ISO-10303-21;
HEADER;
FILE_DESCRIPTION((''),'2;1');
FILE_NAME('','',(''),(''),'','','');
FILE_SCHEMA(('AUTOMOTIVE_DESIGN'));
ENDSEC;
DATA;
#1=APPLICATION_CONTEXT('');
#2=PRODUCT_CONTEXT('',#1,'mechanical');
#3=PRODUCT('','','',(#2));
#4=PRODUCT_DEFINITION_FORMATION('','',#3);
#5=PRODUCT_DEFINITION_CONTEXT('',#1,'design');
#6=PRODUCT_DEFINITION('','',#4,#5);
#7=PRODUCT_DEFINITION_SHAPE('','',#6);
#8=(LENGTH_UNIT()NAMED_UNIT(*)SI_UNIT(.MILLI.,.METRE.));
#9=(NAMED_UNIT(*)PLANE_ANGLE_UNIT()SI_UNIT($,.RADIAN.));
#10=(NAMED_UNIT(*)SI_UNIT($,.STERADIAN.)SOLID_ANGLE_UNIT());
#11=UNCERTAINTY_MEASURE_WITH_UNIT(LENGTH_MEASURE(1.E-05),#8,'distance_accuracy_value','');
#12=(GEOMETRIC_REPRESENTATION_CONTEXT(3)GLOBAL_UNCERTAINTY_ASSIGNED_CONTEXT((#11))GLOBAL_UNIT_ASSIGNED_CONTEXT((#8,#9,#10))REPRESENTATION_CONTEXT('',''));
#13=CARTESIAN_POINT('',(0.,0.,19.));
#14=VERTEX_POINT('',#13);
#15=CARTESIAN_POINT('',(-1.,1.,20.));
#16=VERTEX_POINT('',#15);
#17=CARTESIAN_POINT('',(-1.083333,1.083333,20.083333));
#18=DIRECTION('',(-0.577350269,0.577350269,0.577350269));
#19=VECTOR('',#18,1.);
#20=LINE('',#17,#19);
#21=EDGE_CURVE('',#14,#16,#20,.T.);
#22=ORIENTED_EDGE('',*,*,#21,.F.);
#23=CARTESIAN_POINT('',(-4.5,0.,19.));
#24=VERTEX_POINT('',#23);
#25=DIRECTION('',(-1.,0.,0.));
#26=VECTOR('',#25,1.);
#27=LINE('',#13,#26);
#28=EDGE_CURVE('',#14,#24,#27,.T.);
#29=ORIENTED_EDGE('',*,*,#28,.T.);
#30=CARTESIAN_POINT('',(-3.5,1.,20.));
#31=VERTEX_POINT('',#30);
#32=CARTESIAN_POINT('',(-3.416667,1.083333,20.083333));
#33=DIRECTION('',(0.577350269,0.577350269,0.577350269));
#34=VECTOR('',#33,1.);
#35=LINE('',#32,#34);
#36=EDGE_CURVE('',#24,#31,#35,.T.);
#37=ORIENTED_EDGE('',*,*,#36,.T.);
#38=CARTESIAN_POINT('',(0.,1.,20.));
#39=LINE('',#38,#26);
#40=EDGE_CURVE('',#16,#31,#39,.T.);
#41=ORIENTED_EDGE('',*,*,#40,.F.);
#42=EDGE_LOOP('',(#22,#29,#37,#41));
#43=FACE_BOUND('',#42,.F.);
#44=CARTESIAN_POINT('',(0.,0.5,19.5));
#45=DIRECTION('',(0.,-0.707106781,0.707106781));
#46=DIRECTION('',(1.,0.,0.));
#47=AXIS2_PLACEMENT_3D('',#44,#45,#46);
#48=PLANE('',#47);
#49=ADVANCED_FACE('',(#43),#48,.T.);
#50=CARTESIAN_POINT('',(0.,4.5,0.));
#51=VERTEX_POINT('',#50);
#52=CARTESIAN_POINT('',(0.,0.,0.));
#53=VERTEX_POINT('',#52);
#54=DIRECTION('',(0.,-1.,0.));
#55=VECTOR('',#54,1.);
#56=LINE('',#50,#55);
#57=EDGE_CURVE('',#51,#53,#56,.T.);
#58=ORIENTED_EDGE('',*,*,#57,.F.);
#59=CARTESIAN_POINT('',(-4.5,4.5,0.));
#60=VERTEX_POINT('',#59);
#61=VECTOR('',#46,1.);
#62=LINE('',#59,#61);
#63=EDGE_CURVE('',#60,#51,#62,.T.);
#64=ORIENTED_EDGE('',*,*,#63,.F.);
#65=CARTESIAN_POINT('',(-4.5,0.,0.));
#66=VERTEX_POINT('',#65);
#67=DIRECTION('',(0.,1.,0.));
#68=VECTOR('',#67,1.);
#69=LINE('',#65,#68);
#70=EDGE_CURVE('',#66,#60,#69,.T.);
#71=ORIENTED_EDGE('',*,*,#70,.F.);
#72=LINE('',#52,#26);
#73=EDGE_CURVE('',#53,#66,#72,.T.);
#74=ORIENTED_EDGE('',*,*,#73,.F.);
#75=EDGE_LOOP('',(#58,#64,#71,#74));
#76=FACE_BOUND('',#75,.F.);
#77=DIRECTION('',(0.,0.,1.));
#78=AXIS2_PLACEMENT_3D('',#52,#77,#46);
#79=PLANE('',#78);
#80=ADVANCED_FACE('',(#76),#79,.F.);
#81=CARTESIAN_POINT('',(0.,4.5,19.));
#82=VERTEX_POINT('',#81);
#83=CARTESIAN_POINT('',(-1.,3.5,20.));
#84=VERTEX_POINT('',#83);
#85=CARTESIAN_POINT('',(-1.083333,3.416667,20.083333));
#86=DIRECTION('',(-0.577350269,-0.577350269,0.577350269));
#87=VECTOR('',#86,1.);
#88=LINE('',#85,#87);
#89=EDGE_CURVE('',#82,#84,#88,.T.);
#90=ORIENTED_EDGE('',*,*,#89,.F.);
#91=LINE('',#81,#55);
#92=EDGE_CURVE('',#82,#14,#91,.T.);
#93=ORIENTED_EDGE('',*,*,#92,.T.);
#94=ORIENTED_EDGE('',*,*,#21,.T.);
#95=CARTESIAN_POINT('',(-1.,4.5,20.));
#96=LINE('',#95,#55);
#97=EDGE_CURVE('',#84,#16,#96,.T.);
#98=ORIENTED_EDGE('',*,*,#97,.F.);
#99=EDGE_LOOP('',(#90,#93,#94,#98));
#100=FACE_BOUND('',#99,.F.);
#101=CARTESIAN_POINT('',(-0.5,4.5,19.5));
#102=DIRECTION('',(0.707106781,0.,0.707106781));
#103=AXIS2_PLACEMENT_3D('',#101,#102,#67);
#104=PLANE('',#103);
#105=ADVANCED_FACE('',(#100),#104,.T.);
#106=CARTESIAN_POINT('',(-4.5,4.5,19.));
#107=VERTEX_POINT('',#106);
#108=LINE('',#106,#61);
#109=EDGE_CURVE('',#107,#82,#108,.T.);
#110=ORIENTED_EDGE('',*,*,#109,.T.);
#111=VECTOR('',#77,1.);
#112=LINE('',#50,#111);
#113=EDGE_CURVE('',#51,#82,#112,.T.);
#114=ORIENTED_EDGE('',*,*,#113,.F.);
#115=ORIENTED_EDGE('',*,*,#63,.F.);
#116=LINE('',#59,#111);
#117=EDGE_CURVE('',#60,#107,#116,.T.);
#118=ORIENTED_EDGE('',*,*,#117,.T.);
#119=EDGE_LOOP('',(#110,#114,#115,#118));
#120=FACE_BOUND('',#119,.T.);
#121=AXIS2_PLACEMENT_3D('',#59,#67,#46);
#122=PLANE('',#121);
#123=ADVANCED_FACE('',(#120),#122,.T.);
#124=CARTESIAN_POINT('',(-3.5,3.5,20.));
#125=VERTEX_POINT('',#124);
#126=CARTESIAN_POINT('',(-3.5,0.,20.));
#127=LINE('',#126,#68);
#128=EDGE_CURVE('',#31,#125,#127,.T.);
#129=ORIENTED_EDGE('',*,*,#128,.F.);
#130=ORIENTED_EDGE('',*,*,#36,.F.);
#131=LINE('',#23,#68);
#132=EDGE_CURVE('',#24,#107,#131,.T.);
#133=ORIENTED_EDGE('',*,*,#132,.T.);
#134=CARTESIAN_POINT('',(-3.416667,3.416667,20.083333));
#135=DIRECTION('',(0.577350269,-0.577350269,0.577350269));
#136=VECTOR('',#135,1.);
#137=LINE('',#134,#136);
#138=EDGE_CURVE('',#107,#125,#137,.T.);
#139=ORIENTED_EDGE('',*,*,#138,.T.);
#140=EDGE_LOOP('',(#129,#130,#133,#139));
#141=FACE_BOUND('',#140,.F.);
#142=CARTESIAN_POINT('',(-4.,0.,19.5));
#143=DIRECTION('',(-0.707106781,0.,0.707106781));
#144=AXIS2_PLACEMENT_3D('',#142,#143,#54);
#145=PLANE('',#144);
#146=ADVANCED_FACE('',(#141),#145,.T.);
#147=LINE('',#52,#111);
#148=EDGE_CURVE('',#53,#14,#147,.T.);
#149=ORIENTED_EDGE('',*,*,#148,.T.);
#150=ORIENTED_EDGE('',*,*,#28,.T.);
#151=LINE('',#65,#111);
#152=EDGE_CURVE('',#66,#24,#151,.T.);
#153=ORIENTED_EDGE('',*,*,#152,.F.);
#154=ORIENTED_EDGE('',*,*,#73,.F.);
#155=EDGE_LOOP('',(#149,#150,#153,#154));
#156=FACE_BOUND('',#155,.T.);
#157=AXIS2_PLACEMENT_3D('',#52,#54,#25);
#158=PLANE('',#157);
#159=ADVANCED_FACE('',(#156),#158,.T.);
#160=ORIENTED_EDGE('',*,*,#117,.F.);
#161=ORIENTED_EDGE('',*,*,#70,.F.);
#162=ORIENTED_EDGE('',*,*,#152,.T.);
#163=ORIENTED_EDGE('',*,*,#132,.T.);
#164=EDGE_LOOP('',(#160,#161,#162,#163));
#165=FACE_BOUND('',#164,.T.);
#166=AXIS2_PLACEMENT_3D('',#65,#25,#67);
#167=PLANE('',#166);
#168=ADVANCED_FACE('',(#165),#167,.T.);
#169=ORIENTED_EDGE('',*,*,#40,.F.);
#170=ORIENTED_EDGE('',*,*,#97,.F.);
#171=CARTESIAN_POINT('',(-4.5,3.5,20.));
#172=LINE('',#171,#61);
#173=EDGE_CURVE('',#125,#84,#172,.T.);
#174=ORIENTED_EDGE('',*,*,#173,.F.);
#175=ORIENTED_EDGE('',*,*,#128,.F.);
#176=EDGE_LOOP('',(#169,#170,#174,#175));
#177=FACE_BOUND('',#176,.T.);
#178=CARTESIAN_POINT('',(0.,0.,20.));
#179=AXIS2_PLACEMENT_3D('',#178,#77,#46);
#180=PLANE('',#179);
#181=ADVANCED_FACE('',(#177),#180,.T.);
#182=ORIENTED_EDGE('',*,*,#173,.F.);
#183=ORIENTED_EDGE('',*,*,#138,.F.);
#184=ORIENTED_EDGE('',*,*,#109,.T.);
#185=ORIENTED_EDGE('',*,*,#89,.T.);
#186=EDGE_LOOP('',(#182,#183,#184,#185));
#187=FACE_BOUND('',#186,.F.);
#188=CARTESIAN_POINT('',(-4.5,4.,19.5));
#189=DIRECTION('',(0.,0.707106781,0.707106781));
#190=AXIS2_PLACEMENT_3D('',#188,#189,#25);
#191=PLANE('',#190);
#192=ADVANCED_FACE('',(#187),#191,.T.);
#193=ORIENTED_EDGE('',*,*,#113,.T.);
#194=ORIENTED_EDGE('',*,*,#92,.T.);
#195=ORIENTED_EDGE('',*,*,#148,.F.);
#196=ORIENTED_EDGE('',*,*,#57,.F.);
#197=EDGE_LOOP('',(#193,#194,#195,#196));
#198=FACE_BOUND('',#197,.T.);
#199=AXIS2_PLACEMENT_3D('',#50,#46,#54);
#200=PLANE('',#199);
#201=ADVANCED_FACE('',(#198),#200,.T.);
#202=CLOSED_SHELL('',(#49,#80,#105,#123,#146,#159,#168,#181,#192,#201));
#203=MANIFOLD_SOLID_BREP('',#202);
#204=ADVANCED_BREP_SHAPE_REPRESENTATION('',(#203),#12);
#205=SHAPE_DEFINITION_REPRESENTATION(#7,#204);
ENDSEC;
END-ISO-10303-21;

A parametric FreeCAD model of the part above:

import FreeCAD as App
import Part
import Sketcher

V = App.Vector


def edges_at(feature, points):
    """Names of the edges that pass closest to the given points."""
    edges = feature.Shape.Edges
    near = lambda p: min(range(len(edges)), key=lambda i: edges[i].distToShape(Part.Vertex(*p))[0])
    return sorted({f"Edge{near(p) + 1}" for p in points})

doc = App.newDocument("Part")
body = doc.addObject("PartDesign::Body", "Body")

# Sketch on XY plane
sketch1 = body.newObject("Sketcher::SketchObject", "Sketch")
sketch1.AttachmentSupport = (doc.getObject("XY_Plane"), [""])
sketch1.MapMode = "FlatFace"
sketch1.addGeometry([
    Part.LineSegment(V(-4.5, 0, 0), V(0, 0, 0)),
    Part.LineSegment(V(0, 0, 0), V(0, 4.5, 0)),
    Part.LineSegment(V(0, 4.5, 0), V(-4.5, 4.5, 0)),
    Part.LineSegment(V(-4.5, 4.5, 0), V(-4.5, 0, 0)),
], False)
sketch1.addConstraint([
    Sketcher.Constraint("Coincident", 0, 2, 1, 1),
    Sketcher.Constraint("Coincident", 1, 2, 2, 1),
    Sketcher.Constraint("Coincident", 2, 2, 3, 1),
    Sketcher.Constraint("Coincident", 3, 2, 0, 1),
    Sketcher.Constraint("Horizontal", 0),
    Sketcher.Constraint("Vertical", 1),
    Sketcher.Constraint("Horizontal", 2),
    Sketcher.Constraint("Vertical", 3),
    Sketcher.Constraint("Coincident", 0, 2, -1, 1),
    Sketcher.Constraint("Equal", 2, 1),
    Sketcher.Constraint("DistanceX", 0, 1, 0, 2, 4.5),
])
pad1 = body.newObject("PartDesign::Pad", "Pad")
pad1.Profile = sketch1
pad1.Length = 20
doc.recompute()

chamfer = body.newObject("PartDesign::Chamfer", "Chamfer")
chamfer.Base = (pad1, edges_at(pad1, [
    (-2.25, 4.5, 20),
    (0, 2.25, 20),
    (-2.25, 0, 20),
    (-4.5, 2.25, 20),
]))
chamfer.Size = 1

doc.recompute()
